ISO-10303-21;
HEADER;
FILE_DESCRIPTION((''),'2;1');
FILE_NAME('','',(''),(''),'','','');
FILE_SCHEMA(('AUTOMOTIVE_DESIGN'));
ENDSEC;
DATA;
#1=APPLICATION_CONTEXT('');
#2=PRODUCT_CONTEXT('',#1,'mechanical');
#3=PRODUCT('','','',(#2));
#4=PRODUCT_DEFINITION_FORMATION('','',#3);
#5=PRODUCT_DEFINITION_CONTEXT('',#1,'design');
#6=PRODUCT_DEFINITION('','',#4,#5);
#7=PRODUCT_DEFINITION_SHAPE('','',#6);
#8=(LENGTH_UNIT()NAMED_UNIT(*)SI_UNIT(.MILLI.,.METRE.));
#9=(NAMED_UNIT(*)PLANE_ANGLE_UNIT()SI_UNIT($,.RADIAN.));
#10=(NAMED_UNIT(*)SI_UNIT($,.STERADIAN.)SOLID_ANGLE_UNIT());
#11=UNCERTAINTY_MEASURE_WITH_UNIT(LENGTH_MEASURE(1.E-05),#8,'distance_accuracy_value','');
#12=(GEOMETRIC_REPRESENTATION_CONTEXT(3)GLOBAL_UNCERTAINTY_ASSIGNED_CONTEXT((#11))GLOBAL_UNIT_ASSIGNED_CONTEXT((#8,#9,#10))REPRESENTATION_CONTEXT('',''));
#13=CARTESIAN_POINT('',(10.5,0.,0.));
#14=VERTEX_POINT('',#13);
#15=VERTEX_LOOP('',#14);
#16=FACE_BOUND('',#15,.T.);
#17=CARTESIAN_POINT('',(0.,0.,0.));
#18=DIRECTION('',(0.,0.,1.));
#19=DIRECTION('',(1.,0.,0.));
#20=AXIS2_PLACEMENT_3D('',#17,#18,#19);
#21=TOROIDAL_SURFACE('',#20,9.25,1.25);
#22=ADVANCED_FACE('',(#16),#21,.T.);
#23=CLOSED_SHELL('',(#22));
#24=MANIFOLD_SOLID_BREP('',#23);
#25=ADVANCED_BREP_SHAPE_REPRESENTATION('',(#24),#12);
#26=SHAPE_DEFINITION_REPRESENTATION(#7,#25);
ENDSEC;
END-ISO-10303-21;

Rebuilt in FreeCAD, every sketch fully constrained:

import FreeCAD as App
import Part
import Sketcher

V = App.Vector
Q = App.Units.Quantity

doc = App.newDocument("Part")
body = doc.addObject("PartDesign::Body", "Body")

sketch1 = doc.addObject("Sketcher::SketchObject", "Sketch")
body.addObject(sketch1)
sketch1.AttachmentSupport = (doc.XZ_Plane, [""])
sketch1.MapMode = "FlatFace"
sketch1.addGeometry(Part.Circle(V(9.25, 0, 0), V(0, 0, 1), 1.25), False)
sketch1.addConstraint(Sketcher.Constraint("PointOnObject", 0, 3, -1))
sketch1.addConstraint(Sketcher.Constraint("Diameter", 0, Q("2.5 mm")))
sketch1.addConstraint(Sketcher.Constraint("DistanceX", -1, 1, 0, 3, Q("9.25 mm")))
revolution = doc.addObject("PartDesign::Revolution", "Revolution")
body.addObject(revolution)
revolution.Profile = sketch1
revolution.ReferenceAxis = (sketch1, ["V_Axis"])
revolution.Angle = 360

doc.recompute()
